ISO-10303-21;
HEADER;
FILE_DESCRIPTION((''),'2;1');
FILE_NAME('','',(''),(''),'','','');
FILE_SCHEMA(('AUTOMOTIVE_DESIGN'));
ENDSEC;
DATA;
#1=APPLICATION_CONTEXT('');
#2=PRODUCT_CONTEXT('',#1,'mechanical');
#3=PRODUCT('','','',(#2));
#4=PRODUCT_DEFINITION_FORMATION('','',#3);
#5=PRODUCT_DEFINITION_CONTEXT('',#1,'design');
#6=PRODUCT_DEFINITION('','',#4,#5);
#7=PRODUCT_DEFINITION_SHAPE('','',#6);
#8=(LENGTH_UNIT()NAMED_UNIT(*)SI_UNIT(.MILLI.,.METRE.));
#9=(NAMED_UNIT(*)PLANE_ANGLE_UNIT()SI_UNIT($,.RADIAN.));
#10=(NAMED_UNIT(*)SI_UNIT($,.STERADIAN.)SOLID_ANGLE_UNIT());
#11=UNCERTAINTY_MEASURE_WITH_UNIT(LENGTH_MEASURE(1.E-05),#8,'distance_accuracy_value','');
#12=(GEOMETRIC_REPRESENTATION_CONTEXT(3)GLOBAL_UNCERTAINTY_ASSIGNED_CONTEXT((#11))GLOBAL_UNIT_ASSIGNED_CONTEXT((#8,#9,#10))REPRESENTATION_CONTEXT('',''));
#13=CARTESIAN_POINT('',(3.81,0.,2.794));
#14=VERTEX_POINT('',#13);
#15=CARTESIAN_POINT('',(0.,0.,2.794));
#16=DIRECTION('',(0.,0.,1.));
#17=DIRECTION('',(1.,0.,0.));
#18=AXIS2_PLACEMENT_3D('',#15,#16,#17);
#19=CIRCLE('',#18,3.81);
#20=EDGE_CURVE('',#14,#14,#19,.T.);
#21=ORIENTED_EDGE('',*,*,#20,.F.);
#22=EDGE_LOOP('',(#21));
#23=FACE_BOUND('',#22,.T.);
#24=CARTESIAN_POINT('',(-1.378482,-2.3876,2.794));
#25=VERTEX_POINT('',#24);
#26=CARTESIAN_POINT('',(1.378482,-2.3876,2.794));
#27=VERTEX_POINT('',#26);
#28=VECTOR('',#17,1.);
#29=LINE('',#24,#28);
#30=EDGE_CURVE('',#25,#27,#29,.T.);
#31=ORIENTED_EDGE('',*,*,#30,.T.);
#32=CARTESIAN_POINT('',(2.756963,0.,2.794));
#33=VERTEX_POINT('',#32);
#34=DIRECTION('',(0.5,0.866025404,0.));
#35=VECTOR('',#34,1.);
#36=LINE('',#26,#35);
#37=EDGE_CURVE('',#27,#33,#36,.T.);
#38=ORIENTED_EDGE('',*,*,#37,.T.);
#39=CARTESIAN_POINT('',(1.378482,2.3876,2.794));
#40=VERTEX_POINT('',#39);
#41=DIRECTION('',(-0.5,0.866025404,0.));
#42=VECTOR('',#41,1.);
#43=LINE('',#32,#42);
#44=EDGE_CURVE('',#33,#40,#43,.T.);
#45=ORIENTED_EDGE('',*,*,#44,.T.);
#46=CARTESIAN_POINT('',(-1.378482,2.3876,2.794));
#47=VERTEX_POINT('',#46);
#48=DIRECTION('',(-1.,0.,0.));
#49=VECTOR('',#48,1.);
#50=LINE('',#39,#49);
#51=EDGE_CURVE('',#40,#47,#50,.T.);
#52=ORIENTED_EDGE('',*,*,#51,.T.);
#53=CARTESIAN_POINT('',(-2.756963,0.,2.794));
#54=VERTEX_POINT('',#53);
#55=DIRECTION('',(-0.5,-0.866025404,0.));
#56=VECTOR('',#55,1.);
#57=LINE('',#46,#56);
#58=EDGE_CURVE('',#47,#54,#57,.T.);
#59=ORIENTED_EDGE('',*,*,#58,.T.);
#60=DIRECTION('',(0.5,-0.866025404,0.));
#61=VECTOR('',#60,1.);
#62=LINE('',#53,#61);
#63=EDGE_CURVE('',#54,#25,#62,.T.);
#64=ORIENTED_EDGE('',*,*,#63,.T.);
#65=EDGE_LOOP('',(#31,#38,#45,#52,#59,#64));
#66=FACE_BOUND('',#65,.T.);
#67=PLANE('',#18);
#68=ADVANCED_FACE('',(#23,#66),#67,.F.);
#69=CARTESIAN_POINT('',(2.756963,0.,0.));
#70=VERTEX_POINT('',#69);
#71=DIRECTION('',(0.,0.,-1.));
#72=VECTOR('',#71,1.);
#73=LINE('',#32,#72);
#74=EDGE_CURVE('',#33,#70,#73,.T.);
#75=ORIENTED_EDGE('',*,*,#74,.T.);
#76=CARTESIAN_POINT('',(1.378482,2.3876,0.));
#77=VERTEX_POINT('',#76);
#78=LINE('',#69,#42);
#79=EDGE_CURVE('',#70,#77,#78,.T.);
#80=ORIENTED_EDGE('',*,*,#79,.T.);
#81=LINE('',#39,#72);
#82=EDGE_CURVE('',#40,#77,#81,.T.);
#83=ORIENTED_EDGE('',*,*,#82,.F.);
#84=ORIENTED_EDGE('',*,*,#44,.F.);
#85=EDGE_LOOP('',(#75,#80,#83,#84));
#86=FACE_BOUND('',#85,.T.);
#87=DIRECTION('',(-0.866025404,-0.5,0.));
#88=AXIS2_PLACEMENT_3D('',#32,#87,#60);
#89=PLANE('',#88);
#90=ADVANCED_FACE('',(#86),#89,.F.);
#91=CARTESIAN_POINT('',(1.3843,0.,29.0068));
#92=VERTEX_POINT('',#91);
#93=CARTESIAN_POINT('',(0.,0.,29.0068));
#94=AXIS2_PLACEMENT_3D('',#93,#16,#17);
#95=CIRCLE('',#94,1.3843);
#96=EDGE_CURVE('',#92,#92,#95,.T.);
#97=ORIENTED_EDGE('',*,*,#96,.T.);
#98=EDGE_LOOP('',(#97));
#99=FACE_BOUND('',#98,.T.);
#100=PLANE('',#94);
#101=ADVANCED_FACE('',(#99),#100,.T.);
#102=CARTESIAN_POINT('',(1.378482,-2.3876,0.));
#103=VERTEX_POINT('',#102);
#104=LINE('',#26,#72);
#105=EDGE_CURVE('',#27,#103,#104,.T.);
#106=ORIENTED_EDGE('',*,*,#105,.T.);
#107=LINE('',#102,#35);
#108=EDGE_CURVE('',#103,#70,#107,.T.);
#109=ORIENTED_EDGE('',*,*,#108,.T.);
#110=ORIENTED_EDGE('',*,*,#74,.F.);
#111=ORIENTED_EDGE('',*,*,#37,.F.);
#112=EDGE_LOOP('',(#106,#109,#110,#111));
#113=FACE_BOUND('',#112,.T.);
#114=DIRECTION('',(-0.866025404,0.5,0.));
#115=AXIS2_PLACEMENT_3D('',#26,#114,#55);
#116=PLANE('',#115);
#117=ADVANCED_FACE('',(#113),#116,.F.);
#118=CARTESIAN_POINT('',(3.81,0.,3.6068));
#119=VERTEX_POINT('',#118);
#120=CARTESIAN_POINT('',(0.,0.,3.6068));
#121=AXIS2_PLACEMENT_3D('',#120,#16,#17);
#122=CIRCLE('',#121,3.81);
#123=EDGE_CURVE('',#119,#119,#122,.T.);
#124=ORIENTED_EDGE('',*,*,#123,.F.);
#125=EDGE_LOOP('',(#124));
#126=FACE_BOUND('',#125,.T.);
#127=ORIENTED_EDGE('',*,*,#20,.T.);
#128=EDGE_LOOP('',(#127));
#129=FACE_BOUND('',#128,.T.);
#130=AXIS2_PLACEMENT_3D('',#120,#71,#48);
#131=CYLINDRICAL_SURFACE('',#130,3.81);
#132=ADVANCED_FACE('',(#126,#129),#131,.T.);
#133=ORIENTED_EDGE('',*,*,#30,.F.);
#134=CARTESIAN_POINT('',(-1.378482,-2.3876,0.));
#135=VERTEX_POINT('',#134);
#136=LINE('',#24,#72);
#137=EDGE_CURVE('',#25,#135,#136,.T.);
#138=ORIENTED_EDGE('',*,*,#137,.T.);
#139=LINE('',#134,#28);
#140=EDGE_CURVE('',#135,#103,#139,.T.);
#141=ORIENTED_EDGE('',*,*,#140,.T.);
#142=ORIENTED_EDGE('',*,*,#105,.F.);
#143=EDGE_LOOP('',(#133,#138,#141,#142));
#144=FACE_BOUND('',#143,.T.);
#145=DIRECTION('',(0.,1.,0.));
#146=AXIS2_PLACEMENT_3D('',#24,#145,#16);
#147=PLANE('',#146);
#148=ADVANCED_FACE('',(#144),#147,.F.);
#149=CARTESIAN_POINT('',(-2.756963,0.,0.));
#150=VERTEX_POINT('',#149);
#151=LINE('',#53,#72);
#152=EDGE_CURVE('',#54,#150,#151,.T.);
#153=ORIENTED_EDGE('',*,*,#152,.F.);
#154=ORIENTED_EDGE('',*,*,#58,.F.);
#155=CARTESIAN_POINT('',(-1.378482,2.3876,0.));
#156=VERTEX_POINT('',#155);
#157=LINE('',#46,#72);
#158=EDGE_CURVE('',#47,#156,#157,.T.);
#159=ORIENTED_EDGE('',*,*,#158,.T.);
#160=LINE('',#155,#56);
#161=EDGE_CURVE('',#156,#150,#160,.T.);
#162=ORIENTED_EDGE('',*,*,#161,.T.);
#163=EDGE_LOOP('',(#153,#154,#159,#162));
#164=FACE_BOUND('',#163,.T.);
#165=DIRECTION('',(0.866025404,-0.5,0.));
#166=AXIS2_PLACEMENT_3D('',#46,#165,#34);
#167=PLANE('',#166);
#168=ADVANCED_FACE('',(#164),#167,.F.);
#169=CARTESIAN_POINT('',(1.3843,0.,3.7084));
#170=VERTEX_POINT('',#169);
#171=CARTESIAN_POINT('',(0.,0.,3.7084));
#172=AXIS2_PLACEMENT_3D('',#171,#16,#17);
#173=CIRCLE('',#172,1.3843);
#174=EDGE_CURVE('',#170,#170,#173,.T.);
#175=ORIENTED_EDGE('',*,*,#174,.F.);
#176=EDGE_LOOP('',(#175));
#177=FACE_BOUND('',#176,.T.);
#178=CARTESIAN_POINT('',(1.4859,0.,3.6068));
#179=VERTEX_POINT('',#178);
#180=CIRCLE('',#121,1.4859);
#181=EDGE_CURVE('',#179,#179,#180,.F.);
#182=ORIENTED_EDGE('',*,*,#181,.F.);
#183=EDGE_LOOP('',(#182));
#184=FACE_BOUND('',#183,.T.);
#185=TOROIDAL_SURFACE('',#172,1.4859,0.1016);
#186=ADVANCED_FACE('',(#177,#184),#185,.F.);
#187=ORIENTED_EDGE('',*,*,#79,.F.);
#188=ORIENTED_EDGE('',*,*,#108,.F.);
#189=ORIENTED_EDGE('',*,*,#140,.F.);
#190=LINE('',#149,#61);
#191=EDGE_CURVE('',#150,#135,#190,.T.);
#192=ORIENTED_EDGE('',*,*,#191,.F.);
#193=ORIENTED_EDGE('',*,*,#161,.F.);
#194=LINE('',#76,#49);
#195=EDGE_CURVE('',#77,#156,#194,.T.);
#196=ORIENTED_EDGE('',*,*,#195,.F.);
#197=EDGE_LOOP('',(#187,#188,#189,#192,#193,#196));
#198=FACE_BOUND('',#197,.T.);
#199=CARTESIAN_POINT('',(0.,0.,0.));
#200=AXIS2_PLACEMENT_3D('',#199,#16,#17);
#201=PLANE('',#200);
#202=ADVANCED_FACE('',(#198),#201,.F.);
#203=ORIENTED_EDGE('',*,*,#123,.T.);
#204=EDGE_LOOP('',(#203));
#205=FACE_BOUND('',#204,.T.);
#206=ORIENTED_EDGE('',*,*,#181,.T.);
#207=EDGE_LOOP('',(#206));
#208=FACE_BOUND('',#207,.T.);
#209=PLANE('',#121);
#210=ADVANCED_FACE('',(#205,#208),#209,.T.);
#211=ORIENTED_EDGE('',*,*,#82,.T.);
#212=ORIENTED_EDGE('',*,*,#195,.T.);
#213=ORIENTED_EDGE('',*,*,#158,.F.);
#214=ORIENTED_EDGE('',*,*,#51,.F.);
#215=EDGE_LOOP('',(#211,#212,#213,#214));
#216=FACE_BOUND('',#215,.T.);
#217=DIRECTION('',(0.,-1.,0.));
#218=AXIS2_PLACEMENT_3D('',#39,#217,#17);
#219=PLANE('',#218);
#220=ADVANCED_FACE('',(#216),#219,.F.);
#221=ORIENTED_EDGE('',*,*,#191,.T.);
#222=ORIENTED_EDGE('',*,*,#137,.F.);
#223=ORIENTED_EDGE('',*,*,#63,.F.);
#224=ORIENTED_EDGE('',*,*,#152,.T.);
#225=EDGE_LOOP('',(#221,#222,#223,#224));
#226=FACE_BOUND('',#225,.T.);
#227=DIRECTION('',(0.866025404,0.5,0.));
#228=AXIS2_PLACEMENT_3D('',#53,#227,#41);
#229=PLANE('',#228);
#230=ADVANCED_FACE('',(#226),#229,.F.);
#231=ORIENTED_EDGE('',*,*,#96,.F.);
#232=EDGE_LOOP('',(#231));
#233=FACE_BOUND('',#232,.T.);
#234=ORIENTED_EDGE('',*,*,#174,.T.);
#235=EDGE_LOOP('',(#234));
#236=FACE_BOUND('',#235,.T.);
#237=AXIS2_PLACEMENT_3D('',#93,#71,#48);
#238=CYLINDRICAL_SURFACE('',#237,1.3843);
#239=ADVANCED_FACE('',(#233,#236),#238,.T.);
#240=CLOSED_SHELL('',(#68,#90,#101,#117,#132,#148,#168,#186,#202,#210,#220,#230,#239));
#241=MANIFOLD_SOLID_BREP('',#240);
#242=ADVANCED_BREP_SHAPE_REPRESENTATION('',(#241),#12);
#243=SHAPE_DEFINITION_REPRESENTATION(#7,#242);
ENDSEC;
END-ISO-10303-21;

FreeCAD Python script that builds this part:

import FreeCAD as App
import Part
import Sketcher

V = App.Vector
Q = App.Units.Quantity


def edges_at(feature, points):
    """Names of the edges that pass closest to the given points."""
    edges = feature.Shape.Edges
    near = lambda p: min(range(len(edges)), key=lambda i: edges[i].distToShape(Part.Vertex(*p))[0])
    return sorted({f"Edge{near(p) + 1}" for p in points})


def add_polygon(sketch, points):
    """Adds a closed chain of lines whose ends are joined by coincident constraints."""
    first, n = sketch.GeometryCount, len(points)
    for a, b in zip(points, points[1:] + points[:1]):
        sketch.addGeometry(Part.LineSegment(App.Vector(*a, 0), App.Vector(*b, 0)), False)
    for i in range(n):
        sketch.addConstraint(Sketcher.Constraint("Coincident", first + i, 2, first + (i + 1) % n, 1))

doc = App.newDocument("Part")
params = doc.addObject("Spreadsheet::Sheet", "Params")
for row, (alias, value) in enumerate([
    ("pad1_length", "0.11 in"),
    ("sketch2_diameter", "0.3 in"),
    ("pad2_length", "0.032 in"),
    ("sketch3_diameter", "0.109 in"),
    ("pad3_length", "1 in"),
    ("fillet_radius", "0.004 in"),
], start=1):
    params.set(f"A{row}", alias)
    params.set(f"B{row}", "=" + value)
    params.setAlias(f"B{row}", alias)

body = doc.addObject("PartDesign::Body", "Body")

# Sketch on XY plane
sketch1 = body.newObject("Sketcher::SketchObject", "Sketch")
sketch1.AttachmentSupport = (doc.getObject("XY_Plane"), [""])
sketch1.MapMode = "FlatFace"
add_polygon(sketch1, [(2.756963, 0), (1.378482, 2.3876), (-1.378482, 2.3876), (-2.756963, 0), (-1.378482, -2.3876), (1.378482, -2.3876)])  # lines 0-5
sketch1.addConstraint([
    Sketcher.Constraint("Horizontal", 1),
    Sketcher.Constraint("Horizontal", 4),
    Sketcher.Constraint("Symmetric", 0, 2, 3, 2, -1, 1),
    Sketcher.Constraint("Symmetric", 2, 2, 5, 2, -1, 1),
    Sketcher.Constraint("PointOnObject", 2, 2, -1),
    Sketcher.Constraint("Parallel", 2, 5),
    Sketcher.Constraint("Vertical", 1, 2, 3, 2),
    Sketcher.Constraint("Angle", 0, Q("120 deg")),
    Sketcher.Constraint("DistanceY", -1, 1, 0, 2, Q("0.094 in")),
    Sketcher.Constraint("DistanceX", 1, 2, 1, 1, 2.756963),
])
pad1 = body.newObject("PartDesign::Pad", "Pad")
pad1.Profile = sketch1
pad1.setExpression("Length", "Params.pad1_length")

# Sketch on XY plane
sketch2 = body.newObject("Sketcher::SketchObject", "Sketch001")
sketch2.AttachmentSupport = (doc.getObject("XY_Plane"), [""])
sketch2.MapMode = "FlatFace"
sketch2.AttachmentOffset = App.Placement(V(0, 0, 0.11 * 25.4), App.Rotation())
sketch2.addGeometry(Part.Circle(V(0, 0, 0), V(0, 0, 1), 3.81), False)
sketch2.addConstraint([
    Sketcher.Constraint("Coincident", 0, 3, -1, 1),
    Sketcher.Constraint("Diameter", 0, Q("0.3 in")),
])
sketch2.setExpression("Constraints[1]", "Params.sketch2_diameter")
pad2 = body.newObject("PartDesign::Pad", "Pad001")
pad2.Profile = sketch2
pad2.setExpression("Length", "Params.pad2_length")

# Sketch on XY plane
sketch3 = body.newObject("Sketcher::SketchObject", "Sketch002")
sketch3.AttachmentSupport = (doc.getObject("XY_Plane"), [""])
sketch3.MapMode = "FlatFace"
sketch3.AttachmentOffset = App.Placement(V(0, 0, 0.142 * 25.4), App.Rotation())
sketch3.addGeometry(Part.Circle(V(0, 0, 0), V(0, 0, 1), 1.3843), False)
sketch3.addConstraint([
    Sketcher.Constraint("Coincident", 0, 3, -1, 1),
    Sketcher.Constraint("Diameter", 0, Q("0.109 in")),
])
sketch3.setExpression("Constraints[1]", "Params.sketch3_diameter")
pad3 = body.newObject("PartDesign::Pad", "Pad002")
pad3.Profile = sketch3
pad3.setExpression("Length", "Params.pad3_length")
doc.recompute()

fillet = body.newObject("PartDesign::Fillet", "Fillet")
fillet.Base = (pad3, edges_at(pad3, [(-1.384, 0, 3.607)]))
fillet.setExpression("Radius", "Params.fillet_radius")

doc.recompute()
